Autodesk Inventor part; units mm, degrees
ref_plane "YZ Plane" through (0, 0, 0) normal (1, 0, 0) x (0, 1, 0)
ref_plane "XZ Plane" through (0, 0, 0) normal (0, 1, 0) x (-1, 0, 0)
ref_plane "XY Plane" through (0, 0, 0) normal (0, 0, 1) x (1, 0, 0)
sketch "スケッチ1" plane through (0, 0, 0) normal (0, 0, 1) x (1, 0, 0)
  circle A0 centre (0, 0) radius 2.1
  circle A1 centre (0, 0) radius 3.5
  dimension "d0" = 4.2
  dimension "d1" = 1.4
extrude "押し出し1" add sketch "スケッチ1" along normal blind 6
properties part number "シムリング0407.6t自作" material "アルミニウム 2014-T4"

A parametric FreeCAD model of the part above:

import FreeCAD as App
import Part
import Sketcher

V = App.Vector

doc = App.newDocument("Part")
params = doc.addObject("Spreadsheet::Sheet", "Params")
for row, (alias, value) in enumerate([
    ("sketch1_diameter", "4.2 mm"),
    ("sketch1_diameter2", "7 mm"),
    ("pad1_length", "6 mm"),
], start=1):
    params.set(f"A{row}", alias)
    params.set(f"B{row}", "=" + value)
    params.setAlias(f"B{row}", alias)

body = doc.addObject("PartDesign::Body", "Body")

sketch1 = body.newObject("Sketcher::SketchObject", "Sketch")
sketch1.AttachmentSupport = (doc.getObject("XY_Plane"), [""])
sketch1.MapMode = "FlatFace"
sketch1.addGeometry(Part.Circle(V(0, 0, 0), V(0, 0, 1), 3.5), False)
sketch1.addGeometry(Part.Circle(V(0, 0, 0), V(0, 0, 1), 2.1), False)
sketch1.addConstraint(Sketcher.Constraint("Coincident", 0, 3, -1, 1))
sketch1.addConstraint(Sketcher.Constraint("Coincident", 1, 3, -1, 1))
sketch1.addConstraint(Sketcher.Constraint("Diameter", 1, 4.2))
sketch1.addConstraint(Sketcher.Constraint("Diameter", 0, 7.0))
sketch1.setExpression("Constraints[2]", "Params.sketch1_diameter")
sketch1.setExpression("Constraints[3]", "Params.sketch1_diameter2")
pad1 = body.newObject("PartDesign::Pad", "Pad")
pad1.Profile = sketch1
pad1.setExpression("Length", "Params.pad1_length")

doc.recompute()
